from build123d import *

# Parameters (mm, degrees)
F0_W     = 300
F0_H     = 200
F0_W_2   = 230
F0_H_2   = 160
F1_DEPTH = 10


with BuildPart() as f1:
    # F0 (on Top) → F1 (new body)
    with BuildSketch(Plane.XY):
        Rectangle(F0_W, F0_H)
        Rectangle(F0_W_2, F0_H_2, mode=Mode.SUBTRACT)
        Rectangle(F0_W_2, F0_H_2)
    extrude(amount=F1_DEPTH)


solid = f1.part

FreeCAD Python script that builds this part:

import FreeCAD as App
import Part
import Sketcher

V = App.Vector

doc = App.newDocument("Part")
body = doc.addObject("PartDesign::Body", "Body")

# Sketch on XY plane
sketch1 = body.newObject("Sketcher::SketchObject", "Sketch")
sketch1.AttachmentSupport = (doc.getObject("XY_Plane"), [""])
sketch1.MapMode = "FlatFace"
sketch1.addGeometry([
    Part.LineSegment(V(-150, 100, 0), V(-150, -100, 0)),
    Part.LineSegment(V(-150, -100, 0), V(150, -100, 0)),
    Part.LineSegment(V(150, -100, 0), V(150, 100, 0)),
    Part.LineSegment(V(150, 100, 0), V(-150, 100, 0)),
], False)
sketch1.addConstraint([
    Sketcher.Constraint("Coincident", 0, 2, 1, 1),
    Sketcher.Constraint("Coincident", 1, 2, 2, 1),
    Sketcher.Constraint("Coincident", 2, 2, 3, 1),
    Sketcher.Constraint("Coincident", 3, 2, 0, 1),
    Sketcher.Constraint("Vertical", 0),
    Sketcher.Constraint("Horizontal", 1),
    Sketcher.Constraint("Vertical", 2),
    Sketcher.Constraint("Horizontal", 3),
    Sketcher.Constraint("Symmetric", 0, 2, 2, 2, -1, 1),
    Sketcher.Constraint("DistanceX", 1, 1, 1, 2, 300.0),
    Sketcher.Constraint("DistanceY", 0, 2, 0, 1, 200.0),
])
pad1 = body.newObject("PartDesign::Pad", "Pad")
pad1.Profile = sketch1
pad1.Length = 10

doc.recompute()
